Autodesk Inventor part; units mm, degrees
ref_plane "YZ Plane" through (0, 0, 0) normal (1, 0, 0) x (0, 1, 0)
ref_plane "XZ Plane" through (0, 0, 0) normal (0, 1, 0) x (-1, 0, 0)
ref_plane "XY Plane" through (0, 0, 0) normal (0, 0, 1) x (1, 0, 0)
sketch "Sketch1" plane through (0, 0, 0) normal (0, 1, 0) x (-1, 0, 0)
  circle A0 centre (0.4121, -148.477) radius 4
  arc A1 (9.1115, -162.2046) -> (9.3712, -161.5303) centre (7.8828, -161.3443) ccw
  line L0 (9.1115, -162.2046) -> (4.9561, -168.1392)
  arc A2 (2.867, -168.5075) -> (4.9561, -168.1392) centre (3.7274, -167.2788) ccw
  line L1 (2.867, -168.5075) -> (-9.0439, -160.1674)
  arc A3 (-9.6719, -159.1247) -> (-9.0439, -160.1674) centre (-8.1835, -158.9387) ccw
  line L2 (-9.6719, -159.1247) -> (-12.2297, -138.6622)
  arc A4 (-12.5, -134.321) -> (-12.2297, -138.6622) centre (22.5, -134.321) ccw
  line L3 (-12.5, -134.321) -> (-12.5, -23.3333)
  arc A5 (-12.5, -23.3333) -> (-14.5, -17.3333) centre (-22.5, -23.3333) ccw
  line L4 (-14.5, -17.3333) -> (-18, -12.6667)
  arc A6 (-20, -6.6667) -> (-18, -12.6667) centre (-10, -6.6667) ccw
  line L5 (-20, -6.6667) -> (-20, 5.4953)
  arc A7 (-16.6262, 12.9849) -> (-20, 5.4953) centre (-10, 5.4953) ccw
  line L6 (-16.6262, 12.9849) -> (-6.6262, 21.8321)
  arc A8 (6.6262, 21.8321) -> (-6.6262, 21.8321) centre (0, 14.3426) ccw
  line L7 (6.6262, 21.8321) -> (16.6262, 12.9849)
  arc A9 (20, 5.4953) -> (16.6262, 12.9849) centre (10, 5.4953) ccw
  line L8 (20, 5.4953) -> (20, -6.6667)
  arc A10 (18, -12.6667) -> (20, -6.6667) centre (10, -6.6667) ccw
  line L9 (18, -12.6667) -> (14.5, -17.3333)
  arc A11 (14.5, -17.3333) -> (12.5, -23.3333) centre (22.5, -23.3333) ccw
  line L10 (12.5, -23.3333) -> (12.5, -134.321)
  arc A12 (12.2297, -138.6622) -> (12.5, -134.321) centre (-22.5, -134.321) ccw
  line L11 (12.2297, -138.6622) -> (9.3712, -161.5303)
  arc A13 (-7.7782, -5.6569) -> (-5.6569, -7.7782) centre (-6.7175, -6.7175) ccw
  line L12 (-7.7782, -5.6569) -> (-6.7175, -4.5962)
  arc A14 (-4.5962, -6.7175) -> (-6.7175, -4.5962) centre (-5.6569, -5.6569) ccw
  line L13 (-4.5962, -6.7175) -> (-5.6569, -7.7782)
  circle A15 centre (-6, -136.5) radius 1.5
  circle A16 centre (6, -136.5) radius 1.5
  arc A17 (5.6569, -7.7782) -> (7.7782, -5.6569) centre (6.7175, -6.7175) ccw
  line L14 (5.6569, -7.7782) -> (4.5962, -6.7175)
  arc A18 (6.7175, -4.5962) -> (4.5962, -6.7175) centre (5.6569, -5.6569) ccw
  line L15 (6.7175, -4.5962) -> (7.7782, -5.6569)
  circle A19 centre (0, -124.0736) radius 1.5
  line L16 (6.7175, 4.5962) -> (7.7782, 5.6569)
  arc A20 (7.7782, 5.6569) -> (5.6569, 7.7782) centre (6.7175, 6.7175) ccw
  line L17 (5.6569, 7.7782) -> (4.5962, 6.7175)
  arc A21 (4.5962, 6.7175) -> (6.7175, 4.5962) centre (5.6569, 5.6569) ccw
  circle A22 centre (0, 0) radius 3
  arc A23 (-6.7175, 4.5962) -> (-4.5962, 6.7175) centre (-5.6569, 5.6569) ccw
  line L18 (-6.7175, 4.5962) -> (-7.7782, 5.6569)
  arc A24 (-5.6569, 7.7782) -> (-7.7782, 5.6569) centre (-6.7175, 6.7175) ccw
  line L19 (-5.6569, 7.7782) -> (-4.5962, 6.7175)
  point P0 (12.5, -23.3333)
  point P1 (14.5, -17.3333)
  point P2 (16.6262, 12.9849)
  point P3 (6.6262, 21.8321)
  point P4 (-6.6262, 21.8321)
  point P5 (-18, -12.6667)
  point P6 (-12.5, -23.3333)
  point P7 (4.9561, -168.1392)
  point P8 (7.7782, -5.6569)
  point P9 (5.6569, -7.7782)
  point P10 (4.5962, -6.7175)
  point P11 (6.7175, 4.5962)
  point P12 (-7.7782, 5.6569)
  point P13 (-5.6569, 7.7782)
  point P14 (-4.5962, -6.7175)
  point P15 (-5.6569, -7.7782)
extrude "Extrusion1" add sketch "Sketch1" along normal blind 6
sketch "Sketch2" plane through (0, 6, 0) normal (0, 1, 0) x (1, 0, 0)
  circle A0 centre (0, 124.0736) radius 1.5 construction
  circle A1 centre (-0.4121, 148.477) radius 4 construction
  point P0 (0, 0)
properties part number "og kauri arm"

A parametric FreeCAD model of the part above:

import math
import FreeCAD as App
import Part
import Sketcher
from FreeCAD import Vector
Q = App.Units.Quantity

doc = App.newDocument("Part")
params = doc.addObject("Spreadsheet::Sheet", "Params")
for row, (alias, value) in enumerate([
    ("sketch1_diameter", "3 mm"),
    ("sketch1_diameter2", "8 mm"),
    ("sketch1_diameter3", "3 mm"),
    ("sketch1_diameter4", "3 mm"),
    ("sketch1_diameter5", "6 mm"),
    ("pad1_length", "6 mm"),
], start=1):
    params.set(f"A{row}", alias)
    params.set(f"B{row}", "=" + value)
    params.setAlias(f"B{row}", alias)

body = doc.addObject("PartDesign::Body", "Body")

sketch1 = body.newObject("Sketcher::SketchObject", "Sketch")
sketch1.AttachmentSupport = (doc.getObject("XZ_Plane"), [""])
sketch1.MapMode = "FlatFace"
sketch1.addGeometry([
    Part.LineSegment(Vector(-4.9561, -168.1392, 0), Vector(-9.1115, -162.2046, 0)),
    Part.ArcOfCircle(Part.Circle(Vector(-7.8828, -161.3443, 0), Vector(0, 0, 1), 1.49994), math.radians(-172.876879), math.radians(-145.001408)),
    Part.LineSegment(Vector(-9.3712, -161.5303, 0), Vector(-12.2297, -138.6622, 0)),
    Part.ArcOfCircle(Part.Circle(Vector(22.507073, -134.320338, 0), Vector(0, 0, 1), 35.007073), math.radians(-179.998917), math.radians(-172.875365)),
    Part.LineSegment(Vector(-12.5, -134.321, 0), Vector(-12.5, -23.3333, 0)),
    Part.ArcOfCircle(Part.Circle(Vector(-22.5, -23.3333, 0), Vector(0, 0, 1), 10), math.radians(0), math.radians(36.869898)),
    Part.LineSegment(Vector(-14.5, -17.3333, 0), Vector(-18, -12.6667, 0)),
    Part.ArcOfCircle(Part.Circle(Vector(-10, -6.6667, 0), Vector(0, 0, 1), 10), math.radians(180), math.radians(216.869898)),
    Part.LineSegment(Vector(-20, -6.6667, 0), Vector(-20, 5.4953, 0)),
    Part.ArcOfCircle(Part.Circle(Vector(-10, 5.4953, 0), Vector(0, 0, 1), 10), math.radians(131.499835), math.radians(180)),
    Part.LineSegment(Vector(-16.6262, 12.9849, 0), Vector(-6.6262, 21.8321, 0)),
    Part.ArcOfCircle(Part.Circle(Vector(0, 14.3426, 0), Vector(0, 0, 1), 9.999957), math.radians(48.499785), math.radians(131.500215)),
    Part.LineSegment(Vector(6.6262, 21.8321, 0), Vector(16.6262, 12.9849, 0)),
    Part.ArcOfCircle(Part.Circle(Vector(10, 5.4953, 0), Vector(0, 0, 1), 10.000032), math.radians(0), math.radians(48.500165)),
    Part.LineSegment(Vector(20, 5.4953, 0), Vector(20, -6.6667, 0)),
    Part.ArcOfCircle(Part.Circle(Vector(10, -6.6667, 0), Vector(0, 0, 1), 10), math.radians(-36.869898), math.radians(0)),
    Part.LineSegment(Vector(18, -12.6667, 0), Vector(14.5, -17.3333, 0)),
    Part.ArcOfCircle(Part.Circle(Vector(22.5, -23.3333, 0), Vector(0, 0, 1), 10), math.radians(143.130102), math.radians(180)),
    Part.LineSegment(Vector(12.5, -23.3333, 0), Vector(12.5, -134.321, 0)),
    Part.ArcOfCircle(Part.Circle(Vector(-22.492903, -134.321221, 0), Vector(0, 0, 1), 34.992903), math.radians(-7.126079), math.radians(0.000361)),
    Part.LineSegment(Vector(12.2297, -138.6622, 0), Vector(9.6719, -159.1247, 0)),
    Part.ArcOfCircle(Part.Circle(Vector(8.1835, -158.9387, 0), Vector(0, 0, 1), 1.499977), math.radians(-54.998279), math.radians(-7.123121)),
    Part.LineSegment(Vector(9.0439, -160.1674, 0), Vector(-2.867, -168.5075, 0)),
    Part.ArcOfCircle(Part.Circle(Vector(-3.7274, -167.2788, 0), Vector(0, 0, 1), 1.499997), math.radians(-144.998279), math.radians(-54.998279)),
    Part.Circle(Vector(6, -136.5, 0), Vector(0, 0, 1), 1.5),
    Part.Circle(Vector(-0.4121, -148.477, 0), Vector(0, 0, 1), 4),
    Part.Circle(Vector(0, -124.0736, 0), Vector(0, 0, 1), 1.5),
    Part.Circle(Vector(-6, -136.5, 0), Vector(0, 0, 1), 1.5),
    Part.ArcOfCircle(Part.Circle(Vector(6.7175, -6.7175, 0), Vector(0, 0, 1), 1.499986), math.radians(-134.997299), math.radians(44.997299)),
    Part.LineSegment(Vector(7.7782, -5.6569, 0), Vector(6.7175, -4.5962, 0)),
    Part.ArcOfCircle(Part.Circle(Vector(5.6569, -5.6569, 0), Vector(0, 0, 1), 1.499986), math.radians(45.002701), math.radians(224.997299)),
    Part.LineSegment(Vector(4.5962, -6.7175, 0), Vector(5.6569, -7.7782, 0)),
    Part.ArcOfCircle(Part.Circle(Vector(5.6569, 5.6569, 0), Vector(0, 0, 1), 1.499986), math.radians(135.002701), math.radians(314.997299)),
    Part.LineSegment(Vector(6.7175, 4.5962, 0), Vector(7.7782, 5.6569, 0)),
    Part.ArcOfCircle(Part.Circle(Vector(6.7175, 6.7175, 0), Vector(0, 0, 1), 1.499986), math.radians(-44.997299), math.radians(134.997299)),
    Part.LineSegment(Vector(5.6569, 7.7782, 0), Vector(4.5962, 6.7175, 0)),
    Part.Circle(Vector(0, 0, 0), Vector(0, 0, 1), 3),
    Part.ArcOfCircle(Part.Circle(Vector(-6.7175, -6.7175, 0), Vector(0, 0, 1), 1.499986), math.radians(135.002701), math.radians(314.997299)),
    Part.LineSegment(Vector(-5.6569, -7.7782, 0), Vector(-4.5962, -6.7175, 0)),
    Part.ArcOfCircle(Part.Circle(Vector(-5.6569, -5.6569, 0), Vector(0, 0, 1), 1.499986), math.radians(-44.997299), math.radians(134.997299)),
    Part.LineSegment(Vector(-6.7175, -4.5962, 0), Vector(-7.7782, -5.6569, 0)),
    Part.LineSegment(Vector(-7.7782, 5.6569, 0), Vector(-6.7175, 4.5962, 0)),
    Part.ArcOfCircle(Part.Circle(Vector(-5.6569, 5.6569, 0), Vector(0, 0, 1), 1.499986), math.radians(-134.997299), math.radians(44.997299)),
    Part.LineSegment(Vector(-4.5962, 6.7175, 0), Vector(-5.6569, 7.7782, 0)),
    Part.ArcOfCircle(Part.Circle(Vector(-6.7175, 6.7175, 0), Vector(0, 0, 1), 1.499986), math.radians(45.002701), math.radians(224.997299)),
], False)
sketch1.addConstraint([
    Sketcher.Constraint("Coincident", 0, 2, 1, 2),
    Sketcher.Constraint("Coincident", 1, 1, 2, 1),
    Sketcher.Constraint("Coincident", 2, 2, 3, 2),
    Sketcher.Constraint("Coincident", 3, 1, 4, 1),
    Sketcher.Constraint("Coincident", 4, 2, 5, 1),
    Sketcher.Constraint("Coincident", 5, 2, 6, 1),
    Sketcher.Constraint("Coincident", 6, 2, 7, 2),
    Sketcher.Constraint("Coincident", 7, 1, 8, 1),
    Sketcher.Constraint("Coincident", 8, 2, 9, 2),
    Sketcher.Constraint("Coincident", 9, 1, 10, 1),
    Sketcher.Constraint("Coincident", 10, 2, 11, 2),
    Sketcher.Constraint("Coincident", 11, 1, 12, 1),
    Sketcher.Constraint("Coincident", 12, 2, 13, 2),
    Sketcher.Constraint("Coincident", 13, 1, 14, 1),
    Sketcher.Constraint("Coincident", 14, 2, 15, 2),
    Sketcher.Constraint("Coincident", 15, 1, 16, 1),
    Sketcher.Constraint("Coincident", 16, 2, 17, 1),
    Sketcher.Constraint("Coincident", 17, 2, 18, 1),
    Sketcher.Constraint("Coincident", 18, 2, 19, 2),
    Sketcher.Constraint("Coincident", 19, 1, 20, 1),
    Sketcher.Constraint("Coincident", 20, 2, 21, 2),
    Sketcher.Constraint("Coincident", 21, 1, 22, 1),
    Sketcher.Constraint("Coincident", 22, 2, 23, 2),
    Sketcher.Constraint("Coincident", 23, 1, 0, 1),
    Sketcher.Constraint("Coincident", 28, 2, 29, 1),
    Sketcher.Constraint("Coincident", 29, 2, 30, 1),
    Sketcher.Constraint("Coincident", 30, 2, 31, 1),
    Sketcher.Constraint("Coincident", 31, 2, 28, 1),
    Sketcher.Constraint("Coincident", 32, 2, 33, 1),
    Sketcher.Constraint("Coincident", 33, 2, 34, 1),
    Sketcher.Constraint("Coincident", 34, 2, 35, 1),
    Sketcher.Constraint("Coincident", 35, 2, 32, 1),
    Sketcher.Constraint("Coincident", 37, 2, 38, 1),
    Sketcher.Constraint("Coincident", 38, 2, 39, 1),
    Sketcher.Constraint("Coincident", 39, 2, 40, 1),
    Sketcher.Constraint("Coincident", 40, 2, 37, 1),
    Sketcher.Constraint("Coincident", 41, 2, 42, 1),
    Sketcher.Constraint("Coincident", 42, 2, 43, 1),
    Sketcher.Constraint("Coincident", 43, 2, 44, 1),
    Sketcher.Constraint("Coincident", 44, 2, 41, 1),
    Sketcher.Constraint("Vertical", 4),
    Sketcher.Constraint("Vertical", 8),
    Sketcher.Constraint("Vertical", 14),
    Sketcher.Constraint("Vertical", 18),
    Sketcher.Constraint("Coincident", 36, 3, -1, 1),
    Sketcher.Constraint("PointOnObject", 11, 3, -2),
    Sketcher.Constraint("PointOnObject", 26, 3, -2),
    Sketcher.Constraint("Diameter", 24, Q("3 mm")),
    Sketcher.Constraint("Diameter", 25, Q("8 mm")),
    Sketcher.Constraint("Diameter", 26, Q("3 mm")),
    Sketcher.Constraint("Diameter", 27, Q("3 mm")),
    Sketcher.Constraint("Diameter", 36, Q("6 mm")),
    Sketcher.Constraint("Radius", 5, Q("10 mm")),
    Sketcher.Constraint("Radius", 7, Q("10 mm")),
    Sketcher.Constraint("Radius", 9, Q("10 mm")),
    Sketcher.Constraint("Radius", 11, Q("10 mm")),
    Sketcher.Constraint("Radius", 13, Q("10 mm")),
    Sketcher.Constraint("Radius", 15, Q("10 mm")),
    Sketcher.Constraint("Radius", 17, Q("10 mm")),
    Sketcher.Constraint("Radius", 1, Q("1.5 mm")),
    Sketcher.Constraint("Radius", 21, Q("1.5 mm")),
    Sketcher.Constraint("Radius", 23, Q("1.5 mm")),
    Sketcher.Constraint("Radius", 28, Q("1.5 mm")),
    Sketcher.Constraint("Radius", 30, Q("1.5 mm")),
    Sketcher.Constraint("Radius", 32, Q("1.5 mm")),
    Sketcher.Constraint("Radius", 34, Q("1.5 mm")),
    Sketcher.Constraint("Radius", 37, Q("1.5 mm")),
    Sketcher.Constraint("Radius", 39, Q("1.5 mm")),
    Sketcher.Constraint("Radius", 42, Q("1.5 mm")),
    Sketcher.Constraint("Radius", 44, Q("1.5 mm")),
    Sketcher.Constraint("DistanceX", 7, 3, -1, 1, Q("10 mm")),
    Sketcher.Constraint("DistanceX", -1, 1, 13, 3, Q("10 mm")),
    Sketcher.Constraint("DistanceX", -1, 1, 24, 3, Q("6 mm")),
    Sketcher.Constraint("DistanceX", 27, 3, -1, 1, Q("6 mm")),
    Sketcher.Constraint("DistanceX", 6, 2, -1, 1, Q("18 mm")),
    Sketcher.Constraint("DistanceX", -1, 1, 15, 1, Q("18 mm")),
    Sketcher.Constraint("Radius", 3, Q("35.007 mm")),
    Sketcher.Constraint("Radius", 19, Q("34.993 mm")),
    Sketcher.Constraint("Distance", 29, Q("1.5 mm")),
    Sketcher.Constraint("Distance", 31, Q("1.5 mm")),
    Sketcher.Constraint("Distance", 33, Q("1.5 mm")),
    Sketcher.Constraint("Distance", 35, Q("1.5 mm")),
    Sketcher.Constraint("Distance", 38, Q("1.5 mm")),
    Sketcher.Constraint("Distance", 40, Q("1.5 mm")),
    Sketcher.Constraint("Distance", 41, Q("1.5 mm")),
    Sketcher.Constraint("Distance", 43, Q("1.5 mm")),
    Sketcher.Constraint("DistanceX", 5, 3, -1, 1, Q("22.5 mm")),
    Sketcher.Constraint("DistanceX", -1, 1, 17, 3, Q("22.5 mm")),
    Sketcher.Constraint("DistanceY", 24, 3, -1, 1, Q("136.5 mm")),
    Sketcher.Constraint("DistanceY", 27, 3, -1, 1, Q("136.5 mm")),
    Sketcher.Constraint("DistanceX", 5, 2, -1, 1, Q("14.5 mm")),
    Sketcher.Constraint("DistanceX", -1, 1, 16, 2, Q("14.5 mm")),
    Sketcher.Constraint("DistanceY", 8, 1, 8, 2, Q("12.162 mm")),
    Sketcher.Constraint("DistanceY", 14, 2, 14, 1, Q("12.162 mm")),
    Sketcher.Constraint("Distance", 2, Q("23.046 mm")),
    Sketcher.Constraint("Distance", 10, Q("13.352 mm")),
    Sketcher.Constraint("Distance", 12, Q("13.352 mm")),
    Sketcher.Constraint("DistanceY", 4, 1, 4, 2, Q("110.9877 mm")),
    Sketcher.Constraint("DistanceY", 18, 2, 18, 1, Q("110.9877 mm")),
    Sketcher.Constraint("DistanceX", 25, 3, -1, 1, Q("0.412 mm")),
    Sketcher.Constraint("DistanceY", 25, 3, -1, 1, Q("148.477 mm")),
    Sketcher.Constraint("DistanceX", -1, 1, 30, 3, Q("5.657 mm")),
    Sketcher.Constraint("DistanceY", 30, 3, -1, 1, Q("5.657 mm")),
    Sketcher.Constraint("DistanceX", -1, 1, 32, 3, Q("5.657 mm")),
    Sketcher.Constraint("DistanceY", -1, 1, 32, 3, Q("5.657 mm")),
    Sketcher.Constraint("DistanceX", 39, 3, -1, 1, Q("5.657 mm")),
    Sketcher.Constraint("DistanceY", 39, 3, -1, 1, Q("5.657 mm")),
    Sketcher.Constraint("DistanceX", 42, 3, -1, 1, Q("5.657 mm")),
    Sketcher.Constraint("DistanceY", -1, 1, 42, 3, Q("5.657 mm")),
    Sketcher.Constraint("DistanceY", 3, 1, -1, 1, Q("134.321 mm")),
    Sketcher.Constraint("DistanceY", -1, 1, 10, 2, Q("21.832 mm")),
    Sketcher.Constraint("DistanceY", -1, 1, 11, 1, Q("21.832 mm")),
    Sketcher.Constraint("DistanceY", -1, 1, 12, 2, Q("12.985 mm")),
    Sketcher.Constraint("DistanceY", 18, 2, -1, 1, Q("134.321 mm")),
    Sketcher.Constraint("DistanceX", -1, 1, 20, 2, Q("9.672 mm")),
    Sketcher.Constraint("DistanceX", -1, 1, 21, 1, Q("9.044 mm")),
    Sketcher.Constraint("DistanceX", 22, 2, -1, 1, Q("2.867 mm")),
    Sketcher.Constraint("DistanceX", 23, 1, -1, 1, Q("4.956 mm")),
    Sketcher.Constraint("DistanceY", 28, 2, -1, 1, Q("5.657 mm")),
    Sketcher.Constraint("DistanceX", -1, 1, 31, 2, Q("5.657 mm")),
    Sketcher.Constraint("DistanceY", -1, 1, 33, 2, Q("5.657 mm")),
    Sketcher.Constraint("DistanceX", -1, 1, 34, 2, Q("5.657 mm")),
    Sketcher.Constraint("DistanceX", 37, 2, -1, 1, Q("5.657 mm")),
    Sketcher.Constraint("DistanceY", 40, 2, -1, 1, Q("5.657 mm")),
    Sketcher.Constraint("DistanceX", 43, 2, -1, 1, Q("5.657 mm")),
    Sketcher.Constraint("DistanceY", -1, 1, 44, 2, Q("5.657 mm")),
    Sketcher.Constraint("Distance", 0, Q("7.2448 mm")),
    Sketcher.Constraint("Distance", 6, Q("5.8333 mm")),
    Sketcher.Constraint("Distance", 16, Q("5.8333 mm")),
    Sketcher.Constraint("Distance", 20, Q("20.6217 mm")),
    Sketcher.Constraint("Distance", 22, Q("14.5405 mm")),
    Sketcher.Constraint("DistanceX", 1, 3, -1, 1, Q("7.8828 mm")),
    Sketcher.Constraint("DistanceY", 1, 3, -1, 1, Q("161.3443 mm")),
    Sketcher.Constraint("DistanceY", 3, 3, -1, 1, Q("134.3203 mm")),
    Sketcher.Constraint("DistanceY", 5, 3, -1, 1, Q("23.3333 mm")),
    Sketcher.Constraint("DistanceY", -1, 1, 9, 3, Q("5.4953 mm")),
    Sketcher.Constraint("DistanceY", -1, 1, 11, 3, Q("14.3426 mm")),
    Sketcher.Constraint("DistanceY", 15, 3, -1, 1, Q("6.6667 mm")),
    Sketcher.Constraint("DistanceY", 19, 3, -1, 1, Q("134.3212 mm")),
    Sketcher.Constraint("DistanceX", -1, 1, 21, 3, Q("8.1835 mm")),
    Sketcher.Constraint("DistanceY", 21, 3, -1, 1, Q("158.9387 mm")),
    Sketcher.Constraint("DistanceX", 23, 3, -1, 1, Q("3.7274 mm")),
    Sketcher.Constraint("DistanceY", 26, 3, -1, 1, Q("124.0736 mm")),
    Sketcher.Constraint("DistanceX", -1, 1, 28, 3, Q("6.7175 mm")),
    Sketcher.Constraint("DistanceY", 28, 3, -1, 1, Q("6.7175 mm")),
    Sketcher.Constraint("DistanceX", -1, 1, 34, 3, Q("6.7175 mm")),
    Sketcher.Constraint("DistanceY", -1, 1, 34, 3, Q("6.7175 mm")),
    Sketcher.Constraint("DistanceX", 37, 3, -1, 1, Q("6.7175 mm")),
    Sketcher.Constraint("DistanceY", 37, 3, -1, 1, Q("6.7175 mm")),
    Sketcher.Constraint("DistanceX", 44, 3, -1, 1, Q("6.7175 mm")),
    Sketcher.Constraint("DistanceY", -1, 1, 44, 3, Q("6.7175 mm")),
    Sketcher.Constraint("DistanceX", 1, 1, -1, 1, Q("9.3712 mm")),
    Sketcher.Constraint("DistanceY", 7, 1, -1, 1, Q("6.6667 mm")),
    Sketcher.Constraint("DistanceY", -1, 1, 13, 1, Q("5.4953 mm")),
])
sketch1.setExpression("Constraints[47]", "Params.sketch1_diameter")
sketch1.setExpression("Constraints[48]", "Params.sketch1_diameter2")
sketch1.setExpression("Constraints[49]", "Params.sketch1_diameter3")
sketch1.setExpression("Constraints[50]", "Params.sketch1_diameter4")
sketch1.setExpression("Constraints[51]", "Params.sketch1_diameter5")
pad1 = body.newObject("PartDesign::Pad", "Pad")
pad1.Profile = sketch1
pad1.setExpression("Length", "Params.pad1_length")
pad1.Reversed = True

doc.recompute()
